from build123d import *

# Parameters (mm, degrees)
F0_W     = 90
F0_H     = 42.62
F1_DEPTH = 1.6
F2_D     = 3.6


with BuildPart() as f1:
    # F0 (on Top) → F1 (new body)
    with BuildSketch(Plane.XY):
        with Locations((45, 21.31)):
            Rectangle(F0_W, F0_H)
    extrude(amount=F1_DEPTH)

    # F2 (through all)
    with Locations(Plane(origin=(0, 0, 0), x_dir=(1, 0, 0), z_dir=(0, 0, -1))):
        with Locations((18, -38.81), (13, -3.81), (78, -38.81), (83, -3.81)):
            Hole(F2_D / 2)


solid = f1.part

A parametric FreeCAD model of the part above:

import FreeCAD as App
import Part
import Sketcher
from FreeCAD import Vector
Q = App.Units.Quantity

doc = App.newDocument("Part")
params = doc.addObject("Spreadsheet::Sheet", "Params")
for row, (alias, value) in enumerate([
    ("sketch1_width", "90 mm"),
    ("sketch1_height", "42.62 mm"),
    ("pad1_length", "1.6 mm"),
    ("sketch2_diameter", "3.6 mm"),
    ("hole_diameter", "3.6 mm"),
], start=1):
    params.set(f"A{row}", alias)
    params.set(f"B{row}", "=" + value)
    params.setAlias(f"B{row}", alias)

body = doc.addObject("PartDesign::Body", "Body")

# Sketch on XY plane
sketch1 = body.newObject("Sketcher::SketchObject", "Sketch")
sketch1.AttachmentSupport = (doc.getObject("XY_Plane"), [""])
sketch1.MapMode = "FlatFace"
sketch1.addGeometry(Part.LineSegment(Vector(0, 42.62, 0), Vector(0, 0, 0)), False)
sketch1.addGeometry(Part.LineSegment(Vector(0, 0, 0), Vector(90, 0, 0)), False)
sketch1.addGeometry(Part.LineSegment(Vector(90, 0, 0), Vector(90, 42.62, 0)), False)
sketch1.addGeometry(Part.LineSegment(Vector(90, 42.62, 0), Vector(0, 42.62, 0)), False)
sketch1.addConstraint(Sketcher.Constraint("Coincident", 0, 2, 1, 1))
sketch1.addConstraint(Sketcher.Constraint("Coincident", 1, 2, 2, 1))
sketch1.addConstraint(Sketcher.Constraint("Coincident", 2, 2, 3, 1))
sketch1.addConstraint(Sketcher.Constraint("Coincident", 3, 2, 0, 1))
sketch1.addConstraint(Sketcher.Constraint("Vertical", 0))
sketch1.addConstraint(Sketcher.Constraint("Horizontal", 1))
sketch1.addConstraint(Sketcher.Constraint("Vertical", 2))
sketch1.addConstraint(Sketcher.Constraint("Horizontal", 3))
sketch1.addConstraint(Sketcher.Constraint("Coincident", 0, 2, -1, 1))
sketch1.addConstraint(Sketcher.Constraint("DistanceX", 1, 1, 1, 2, Q("90 mm")))
sketch1.addConstraint(Sketcher.Constraint("DistanceY", 0, 2, 0, 1, Q("42.62 mm")))
sketch1.setExpression("Constraints[9]", "Params.sketch1_width")
sketch1.setExpression("Constraints[10]", "Params.sketch1_height")
pad1 = body.newObject("PartDesign::Pad", "Pad")
pad1.Profile = sketch1
pad1.setExpression("Length", "Params.pad1_length")

# Sketch on XY plane
sketch2 = body.newObject("Sketcher::SketchObject", "Sketch001")
sketch2.AttachmentSupport = (doc.getObject("XY_Plane"), [""])
sketch2.MapMode = "FlatFace"
sketch2.addGeometry(Part.Circle(Vector(18, 38.81, 0), Vector(0, 0, 1), 1.8), False)
sketch2.addGeometry(Part.Circle(Vector(13, 3.81, 0), Vector(0, 0, 1), 1.8), False)
sketch2.addGeometry(Part.Circle(Vector(78, 38.81, 0), Vector(0, 0, 1), 1.8), False)
sketch2.addGeometry(Part.Circle(Vector(83, 3.81, 0), Vector(0, 0, 1), 1.8), False)
sketch2.addConstraint(Sketcher.Constraint("Equal", 0, 1))
sketch2.addConstraint(Sketcher.Constraint("Equal", 1, 2))
sketch2.addConstraint(Sketcher.Constraint("Equal", 2, 3))
sketch2.addConstraint(Sketcher.Constraint("Horizontal", 0, 3, 2, 3))
sketch2.addConstraint(Sketcher.Constraint("Horizontal", 1, 3, 3, 3))
sketch2.addConstraint(Sketcher.Constraint("Diameter", 0, Q("3.6 mm")))
sketch2.addConstraint(Sketcher.Constraint("DistanceX", -1, 1, 0, 3, Q("18 mm")))
sketch2.addConstraint(Sketcher.Constraint("DistanceX", -1, 1, 1, 3, Q("13 mm")))
sketch2.addConstraint(Sketcher.Constraint("DistanceX", -1, 1, 2, 3, Q("78 mm")))
sketch2.addConstraint(Sketcher.Constraint("DistanceX", -1, 1, 3, 3, Q("83 mm")))
sketch2.addConstraint(Sketcher.Constraint("DistanceY", 1, 3, 0, 3, Q("35 mm")))
sketch2.addConstraint(Sketcher.Constraint("DistanceY", -1, 1, 0, 3, Q("38.81 mm")))
sketch2.setExpression("Constraints[5]", "Params.sketch2_diameter")
doc.recompute()
hole = body.newObject("PartDesign::Hole", "Hole")
hole.Profile = sketch2
hole.ThreadType = "None"
hole.setExpression("Diameter", "Params.hole_diameter")
hole.DepthType = "ThroughAll"
hole.Reversed = True

doc.recompute()
